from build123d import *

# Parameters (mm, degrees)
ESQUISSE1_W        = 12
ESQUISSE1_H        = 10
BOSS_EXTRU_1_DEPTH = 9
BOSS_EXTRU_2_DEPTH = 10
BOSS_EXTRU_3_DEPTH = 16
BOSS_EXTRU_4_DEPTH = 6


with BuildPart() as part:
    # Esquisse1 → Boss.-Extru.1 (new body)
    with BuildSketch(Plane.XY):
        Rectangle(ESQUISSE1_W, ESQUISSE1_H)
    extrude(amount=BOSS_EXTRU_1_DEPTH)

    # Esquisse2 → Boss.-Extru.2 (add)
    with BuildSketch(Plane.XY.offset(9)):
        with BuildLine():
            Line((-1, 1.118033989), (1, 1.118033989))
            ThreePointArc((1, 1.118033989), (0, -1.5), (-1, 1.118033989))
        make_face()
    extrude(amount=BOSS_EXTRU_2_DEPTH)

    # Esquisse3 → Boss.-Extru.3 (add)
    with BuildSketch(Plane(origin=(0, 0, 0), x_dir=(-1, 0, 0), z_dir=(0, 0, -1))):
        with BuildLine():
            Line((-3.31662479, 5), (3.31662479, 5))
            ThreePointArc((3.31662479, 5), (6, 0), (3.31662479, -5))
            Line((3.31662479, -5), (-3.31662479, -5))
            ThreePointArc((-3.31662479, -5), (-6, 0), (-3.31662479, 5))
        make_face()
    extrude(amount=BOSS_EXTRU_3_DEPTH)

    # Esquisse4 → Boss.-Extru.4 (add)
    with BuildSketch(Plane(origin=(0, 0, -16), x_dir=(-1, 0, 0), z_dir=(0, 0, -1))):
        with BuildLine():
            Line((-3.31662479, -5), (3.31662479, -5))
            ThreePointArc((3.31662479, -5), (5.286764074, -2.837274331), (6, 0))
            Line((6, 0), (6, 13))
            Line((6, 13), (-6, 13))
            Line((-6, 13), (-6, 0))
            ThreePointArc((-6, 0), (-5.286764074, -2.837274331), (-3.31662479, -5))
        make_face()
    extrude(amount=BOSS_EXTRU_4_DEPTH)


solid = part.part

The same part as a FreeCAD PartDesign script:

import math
import FreeCAD as App
import Part
import Sketcher
from FreeCAD import Vector
Q = App.Units.Quantity

doc = App.newDocument("Part")
body = doc.addObject("PartDesign::Body", "Body")

# Sketch on XY plane
sketch1 = doc.addObject("Sketcher::SketchObject", "Sketch")
body.addObject(sketch1)
sketch1.AttachmentSupport = (doc.XY_Plane, [""])
sketch1.MapMode = "FlatFace"
sketch1.addGeometry([
    Part.LineSegment(Vector(-6, 5, 0), Vector(-6, -5, 0)),
    Part.LineSegment(Vector(-6, -5, 0), Vector(6, -5, 0)),
    Part.LineSegment(Vector(6, -5, 0), Vector(6, 5, 0)),
    Part.LineSegment(Vector(6, 5, 0), Vector(-6, 5, 0)),
], False)
sketch1.addConstraint([
    Sketcher.Constraint("Coincident", 0, 2, 1, 1),
    Sketcher.Constraint("Coincident", 1, 2, 2, 1),
    Sketcher.Constraint("Coincident", 2, 2, 3, 1),
    Sketcher.Constraint("Coincident", 3, 2, 0, 1),
    Sketcher.Constraint("Vertical", 0),
    Sketcher.Constraint("Horizontal", 1),
    Sketcher.Constraint("Vertical", 2),
    Sketcher.Constraint("Horizontal", 3),
    Sketcher.Constraint("Symmetric", 0, 2, 2, 2, -1, 1),
    Sketcher.Constraint("DistanceX", 1, 1, 1, 2, Q("12 mm")),
    Sketcher.Constraint("DistanceY", 0, 2, 0, 1, Q("10 mm")),
])
pad1 = doc.addObject("PartDesign::Pad", "Pad")
body.addObject(pad1)
pad1.Profile = sketch1
pad1.Length = 9

# Sketch on XY plane
sketch2 = doc.addObject("Sketcher::SketchObject", "Sketch001")
body.addObject(sketch2)
sketch2.AttachmentSupport = (doc.XY_Plane, [""])
sketch2.MapMode = "FlatFace"
sketch2.AttachmentOffset = App.Placement(Vector(0, 0, 9), App.Rotation())
sketch2.addGeometry([
    Part.LineSegment(Vector(1, 1.118034, 0), Vector(-1, 1.118034, 0)),
    Part.ArcOfCircle(Part.Circle(Vector(0, 0, 0), Vector(0, 0, 1), 1.5), math.radians(131.810315), math.radians(408.189685)),
], False)
sketch2.addConstraint([
    Sketcher.Constraint("Coincident", 0, 1, 1, 2),
    Sketcher.Constraint("Coincident", 1, 1, 0, 2),
    Sketcher.Constraint("Horizontal", 0),
    Sketcher.Constraint("Coincident", 1, 3, -1, 1),
    Sketcher.Constraint("Radius", 1, Q("1.5 mm")),
    Sketcher.Constraint("DistanceX", 0, 2, 0, 1, Q("2 mm")),
])
pad2 = doc.addObject("PartDesign::Pad", "Pad001")
body.addObject(pad2)
pad2.Profile = sketch2
pad2.Length = 10

# Sketch on XY plane
sketch3 = doc.addObject("Sketcher::SketchObject", "Sketch002")
body.addObject(sketch3)
sketch3.AttachmentSupport = (doc.XY_Plane, [""])
sketch3.MapMode = "FlatFace"
sketch3.addGeometry([
    Part.LineSegment(Vector(-3.316625, 5, 0), Vector(3.316625, 5, 0)),
    Part.ArcOfCircle(Part.Circle(Vector(0, 0, 0), Vector(0, 0, 1), 6), math.radians(-56.44269), math.radians(56.44269)),
    Part.LineSegment(Vector(3.316625, -5, 0), Vector(-3.316625, -5, 0)),
    Part.ArcOfCircle(Part.Circle(Vector(0, 0, 0), Vector(0, 0, 1), 6), math.radians(123.55731), math.radians(236.44269)),
], False)
sketch3.addConstraint([
    Sketcher.Constraint("Coincident", 0, 2, 1, 2),
    Sketcher.Constraint("Coincident", 1, 1, 2, 1),
    Sketcher.Constraint("Coincident", 2, 2, 3, 2),
    Sketcher.Constraint("Coincident", 3, 1, 0, 1),
    Sketcher.Constraint("Horizontal", 0),
    Sketcher.Constraint("Horizontal", 2),
    Sketcher.Constraint("Coincident", 1, 3, -1, 1),
    Sketcher.Constraint("Coincident", 3, 3, -1, 1),
    Sketcher.Constraint("Equal", 1, 3),
    Sketcher.Constraint("Vertical", 0, 2, 1, 1),
    Sketcher.Constraint("Radius", 1, Q("6 mm")),
    Sketcher.Constraint("DistanceY", -1, 1, 0, 2, Q("5 mm")),
])
pad3 = doc.addObject("PartDesign::Pad", "Pad002")
body.addObject(pad3)
pad3.Profile = sketch3
pad3.Length = 16
pad3.Reversed = True

# Sketch on XY plane
sketch4 = doc.addObject("Sketcher::SketchObject", "Sketch003")
body.addObject(sketch4)
sketch4.AttachmentSupport = (doc.XY_Plane, [""])
sketch4.MapMode = "FlatFace"
sketch4.AttachmentOffset = App.Placement(Vector(0, 0, -16), App.Rotation())
sketch4.addGeometry([
    Part.LineSegment(Vector(3.316625, -5, 0), Vector(-3.316625, -5, 0)),  # 0
    Part.ArcOfCircle(Part.Circle(Vector(0, 0, 0), Vector(0, 0, 1), 6), math.radians(180), math.radians(236.44269)),  # 1
    Part.LineSegment(Vector(-6, 0, 0), Vector(-6, 13, 0)),  # 2
    Part.LineSegment(Vector(-6, 13, 0), Vector(6, 13, 0)),  # 3
    Part.LineSegment(Vector(6, 13, 0), Vector(6, 0, 0)),  # 4
    Part.ArcOfCircle(Part.Circle(Vector(0, 0, 0), Vector(0, 0, 1), 6), math.radians(-56.44269), math.radians(0)),  # 5
], False)
sketch4.addConstraint([
    Sketcher.Constraint("Coincident", 0, 2, 1, 2),
    Sketcher.Constraint("Tangent", 1, 1, 2, 1),
    Sketcher.Constraint("Coincident", 2, 2, 3, 1),
    Sketcher.Constraint("Coincident", 3, 2, 4, 1),
    Sketcher.Constraint("Tangent", 4, 2, 5, 2),
    Sketcher.Constraint("Coincident", 5, 1, 0, 1),
    Sketcher.Constraint("Horizontal", 0),
    Sketcher.Constraint("Vertical", 2),
    Sketcher.Constraint("Horizontal", 3),
    Sketcher.Constraint("Vertical", 4),
    Sketcher.Constraint("Coincident", 1, 3, -1, 1),
    Sketcher.Constraint("Coincident", 5, 3, -1, 1),
    Sketcher.Constraint("Equal", 1, 5),
    Sketcher.Constraint("Radius", 1, Q("6 mm")),
    Sketcher.Constraint("DistanceY", 2, 1, 2, 2, Q("13 mm")),
    Sketcher.Constraint("DistanceY", 0, 2, -1, 1, Q("5 mm")),
])
pad4 = doc.addObject("PartDesign::Pad", "Pad003")
body.addObject(pad4)
pad4.Profile = sketch4
pad4.Length = 6
pad4.Reversed = True

doc.recompute()
